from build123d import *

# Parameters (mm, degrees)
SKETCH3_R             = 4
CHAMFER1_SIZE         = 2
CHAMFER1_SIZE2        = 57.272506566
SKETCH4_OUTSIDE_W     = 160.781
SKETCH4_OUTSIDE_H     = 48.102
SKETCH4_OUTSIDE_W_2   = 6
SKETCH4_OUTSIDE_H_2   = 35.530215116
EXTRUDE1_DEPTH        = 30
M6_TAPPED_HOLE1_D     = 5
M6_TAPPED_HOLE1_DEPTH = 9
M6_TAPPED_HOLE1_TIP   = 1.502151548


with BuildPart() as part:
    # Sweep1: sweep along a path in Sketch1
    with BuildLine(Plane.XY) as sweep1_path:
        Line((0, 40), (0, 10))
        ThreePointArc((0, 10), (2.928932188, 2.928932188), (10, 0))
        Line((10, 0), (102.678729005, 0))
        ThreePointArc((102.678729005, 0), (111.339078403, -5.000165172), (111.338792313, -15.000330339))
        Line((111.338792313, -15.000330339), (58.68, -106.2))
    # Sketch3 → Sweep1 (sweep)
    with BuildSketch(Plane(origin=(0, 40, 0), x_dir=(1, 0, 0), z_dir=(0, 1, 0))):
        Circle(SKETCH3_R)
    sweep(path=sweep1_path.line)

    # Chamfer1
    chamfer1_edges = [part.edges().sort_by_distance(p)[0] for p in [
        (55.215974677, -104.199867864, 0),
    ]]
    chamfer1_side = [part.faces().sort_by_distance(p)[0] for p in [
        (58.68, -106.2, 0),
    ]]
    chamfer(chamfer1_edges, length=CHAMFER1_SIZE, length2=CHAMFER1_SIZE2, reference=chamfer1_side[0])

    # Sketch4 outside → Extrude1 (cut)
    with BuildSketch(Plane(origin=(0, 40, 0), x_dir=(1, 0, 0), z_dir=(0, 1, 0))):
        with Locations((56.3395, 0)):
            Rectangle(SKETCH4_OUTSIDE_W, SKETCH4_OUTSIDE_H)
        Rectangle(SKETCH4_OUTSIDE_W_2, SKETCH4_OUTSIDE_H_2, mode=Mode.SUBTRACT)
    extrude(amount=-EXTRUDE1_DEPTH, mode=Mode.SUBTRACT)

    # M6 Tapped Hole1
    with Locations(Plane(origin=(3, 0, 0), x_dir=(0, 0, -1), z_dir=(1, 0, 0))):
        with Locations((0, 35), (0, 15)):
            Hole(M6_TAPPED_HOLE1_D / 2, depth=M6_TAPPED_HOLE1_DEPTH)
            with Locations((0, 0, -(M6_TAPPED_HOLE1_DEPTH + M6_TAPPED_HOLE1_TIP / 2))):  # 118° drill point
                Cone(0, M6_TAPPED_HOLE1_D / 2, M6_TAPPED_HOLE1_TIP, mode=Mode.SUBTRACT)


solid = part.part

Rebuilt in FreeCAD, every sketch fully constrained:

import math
import FreeCAD as App
import Part
import Sketcher
Q = App.Units.Quantity


def edges_at(feature, points):
    """Names of the edges that pass closest to the given points."""
    edges = feature.Shape.Edges
    near = lambda p: min(range(len(edges)), key=lambda i: edges[i].distToShape(Part.Vertex(*p))[0])
    return sorted({f"Edge{near(p) + 1}" for p in points})


def add_polygon(sketch, points):
    """Adds a closed chain of lines whose ends are joined by coincident constraints."""
    first, n = sketch.GeometryCount, len(points)
    for a, b in zip(points, points[1:] + points[:1]):
        sketch.addGeometry(Part.LineSegment(App.Vector(*a, 0), App.Vector(*b, 0)), False)
    for i in range(n):
        sketch.addConstraint(Sketcher.Constraint("Coincident", first + i, 2, first + (i + 1) % n, 1))

doc = App.newDocument("Part")
body = doc.addObject("PartDesign::Body", "Body")

sketch1 = doc.addObject("Sketcher::SketchObject", "Sketch")
body.addObject(sketch1)
sketch1.AttachmentSupport = (doc.XZ_Plane, [""])
sketch1.MapMode = "FlatFace"
sketch1.AttachmentOffset = App.Placement(App.Vector(0, 0, -40), App.Rotation())
sketch1.addGeometry(Part.Circle(App.Vector(0, 0, 0), App.Vector(0, 0, 1), 4), False)
sketch1.addConstraint(Sketcher.Constraint("Coincident", 0, 3, -1, 1))
sketch1.addConstraint(Sketcher.Constraint("Diameter", 0, Q("8 mm")))

sketch2 = doc.addObject("Sketcher::SketchObject", "Sketch001")
body.addObject(sketch2)
sketch2.AttachmentSupport = (doc.XY_Plane, [""])
sketch2.MapMode = "FlatFace"
sketch2.addGeometry(Part.LineSegment(App.Vector(0, 40, 0), App.Vector(0, 10, 0)), False)
sketch2.addGeometry(Part.ArcOfCircle(Part.Circle(App.Vector(10, 10, 0), App.Vector(0, 0, 1), 10), math.radians(180), math.radians(270)), False)
sketch2.addGeometry(Part.LineSegment(App.Vector(10, 0, 0), App.Vector(103, 0, 0)), False)
sketch2.addGeometry(Part.ArcOfCircle(Part.Circle(App.Vector(103, -10, 0), App.Vector(0, 0, 1), 10), math.radians(-30), math.radians(90)), False)
sketch2.addGeometry(Part.LineSegment(App.Vector(111, -15, 0), App.Vector(59, -106, 0)), False)
sketch2.addConstraint(Sketcher.Constraint("Tangent", 0, 2, 1, 1))
sketch2.addConstraint(Sketcher.Constraint("Tangent", 1, 2, 2, 1))
sketch2.addConstraint(Sketcher.Constraint("Tangent", 2, 2, 3, 2))
sketch2.addConstraint(Sketcher.Constraint("Tangent", 3, 1, 4, 1))
sketch2.addConstraint(Sketcher.Constraint("Vertical", 0))
sketch2.addConstraint(Sketcher.Constraint("Horizontal", 2))
sketch2.addConstraint(Sketcher.Constraint("Equal", 1, 3))
sketch2.addConstraint(Sketcher.Constraint("PointOnObject", 0, 1, -2))
sketch2.addConstraint(Sketcher.Constraint("PointOnObject", 1, 2, -1))
sketch2.addConstraint(Sketcher.Constraint("Radius", 1, Q("10 mm")))
sketch2.addConstraint(Sketcher.Constraint("DistanceY", 0, 2, 0, 1, Q("30 mm")))
sketch2.addConstraint(Sketcher.Constraint("DistanceY", 4, 2, -1, 1, Q("106.2 mm")))
sketch2.addConstraint(Sketcher.Constraint("DistanceX", -1, 1, 4, 2, Q("58.68 mm")))
sketch2.addConstraint(Sketcher.Constraint("DistanceX", 2, 1, 2, 2, Q("92.678729 mm")))
doc.recompute()

additivepipe = doc.addObject("PartDesign::AdditivePipe", "AdditivePipe")
body.addObject(additivepipe)
additivepipe.Profile = sketch1
additivepipe.Spine = (sketch2, ["Edge1", "Edge2", "Edge3", "Edge4", "Edge5"])
doc.recompute()

chamfer = doc.addObject("PartDesign::Chamfer", "Chamfer")
body.addObject(chamfer)
chamfer.Base = (additivepipe, edges_at(additivepipe, [(55.216, -104.2, 0)]))
chamfer.ChamferType = "Two distances"
chamfer.Size = 2
chamfer.Size2 = 57.272507
chamfer.FlipDirection = True

sketch3 = doc.addObject("Sketcher::SketchObject", "Sketch002")
body.addObject(sketch3)
sketch3.AttachmentSupport = (doc.XZ_Plane, [""])
sketch3.MapMode = "FlatFace"
sketch3.AttachmentOffset = App.Placement(App.Vector(0, 0, -40), App.Rotation())
add_polygon(sketch3, [(-24, -24), (-24, 24), (137, 24), (137, -24)])
add_polygon(sketch3, [(3, 18), (-3, 18), (-3, -18), (3, -18)])
sketch3.addConstraint(Sketcher.Constraint("Vertical", 0))
sketch3.addConstraint(Sketcher.Constraint("Horizontal", 1))
sketch3.addConstraint(Sketcher.Constraint("Vertical", 2))
sketch3.addConstraint(Sketcher.Constraint("Horizontal", 3))
sketch3.addConstraint(Sketcher.Constraint("Horizontal", 4))
sketch3.addConstraint(Sketcher.Constraint("Vertical", 5))
sketch3.addConstraint(Sketcher.Constraint("Horizontal", 6))
sketch3.addConstraint(Sketcher.Constraint("Vertical", 7))
sketch3.addConstraint(Sketcher.Constraint("Symmetric", 4, 2, 6, 2, -1, 1))
sketch3.addConstraint(Sketcher.Constraint("DistanceX", 4, 2, 4, 1, Q("6 mm")))
sketch3.addConstraint(Sketcher.Constraint("DistanceX", 1, 1, 1, 2, Q("160.781 mm")))
sketch3.addConstraint(Sketcher.Constraint("DistanceY", 0, 1, 0, 2, Q("48.102 mm")))
sketch3.addConstraint(Sketcher.Constraint("DistanceX", -1, 1, 1, 2, Q("136.73 mm")))
sketch3.addConstraint(Sketcher.Constraint("DistanceY", -1, 1, 0, 2, Q("24.051 mm")))
sketch3.addConstraint(Sketcher.Constraint("DistanceY", 5, 2, 5, 1, Q("35.530215 mm")))
pocket1 = doc.addObject("PartDesign::Pocket", "Pocket")
body.addObject(pocket1)
pocket1.Profile = sketch3
pocket1.Length = 30
pocket1.Reversed = True

sketch4 = doc.addObject("Sketcher::SketchObject", "Sketch003")
body.addObject(sketch4)
sketch4.AttachmentSupport = (doc.YZ_Plane, [""])
sketch4.MapMode = "FlatFace"
sketch4.AttachmentOffset = App.Placement(App.Vector(0, 0, 3), App.Rotation())
sketch4.addGeometry(Part.Circle(App.Vector(35, 0, 0), App.Vector(0, 0, 1), 2.5), False)
sketch4.addGeometry(Part.Circle(App.Vector(15, 0, 0), App.Vector(0, 0, 1), 2.5), False)
sketch4.addConstraint(Sketcher.Constraint("Equal", 0, 1))
sketch4.addConstraint(Sketcher.Constraint("PointOnObject", 0, 3, -1))
sketch4.addConstraint(Sketcher.Constraint("PointOnObject", 1, 3, -1))
sketch4.addConstraint(Sketcher.Constraint("Diameter", 0, Q("5 mm")))
sketch4.addConstraint(Sketcher.Constraint("DistanceX", -1, 1, 0, 3, Q("35 mm")))
sketch4.addConstraint(Sketcher.Constraint("DistanceX", -1, 1, 1, 3, Q("15 mm")))
doc.recompute()
hole = doc.addObject("PartDesign::Hole", "Hole")
body.addObject(hole)
hole.Profile = sketch4
hole.ThreadType = "None"
hole.Diameter = 5
hole.DepthType = "Dimension"
hole.Depth = 9
hole.DrillPoint = "Angled"
hole.DrillPointAngle = 118

doc.recompute()
